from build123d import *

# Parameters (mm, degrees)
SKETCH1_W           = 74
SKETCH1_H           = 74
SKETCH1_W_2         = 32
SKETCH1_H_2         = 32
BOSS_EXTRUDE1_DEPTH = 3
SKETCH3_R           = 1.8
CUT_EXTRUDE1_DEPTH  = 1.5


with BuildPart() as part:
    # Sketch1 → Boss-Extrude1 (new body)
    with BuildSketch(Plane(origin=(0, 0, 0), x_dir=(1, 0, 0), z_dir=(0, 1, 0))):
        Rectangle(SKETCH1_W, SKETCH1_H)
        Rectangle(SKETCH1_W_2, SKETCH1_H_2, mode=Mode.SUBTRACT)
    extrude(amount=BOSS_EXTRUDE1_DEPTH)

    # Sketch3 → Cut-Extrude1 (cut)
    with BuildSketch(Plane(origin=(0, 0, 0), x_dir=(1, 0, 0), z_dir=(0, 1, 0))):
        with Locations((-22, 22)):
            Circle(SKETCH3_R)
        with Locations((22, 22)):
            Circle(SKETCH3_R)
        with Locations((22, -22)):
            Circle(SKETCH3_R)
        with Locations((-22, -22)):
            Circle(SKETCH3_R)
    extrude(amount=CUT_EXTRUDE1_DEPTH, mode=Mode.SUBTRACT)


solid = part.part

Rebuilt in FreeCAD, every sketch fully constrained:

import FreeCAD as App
import Part
import Sketcher

V = App.Vector

doc = App.newDocument("Part")
body = doc.addObject("PartDesign::Body", "Body")

sketch1 = body.newObject("Sketcher::SketchObject", "Sketch")
sketch1.AttachmentSupport = (doc.getObject("XZ_Plane"), [""])
sketch1.MapMode = "FlatFace"
sketch1.addGeometry(Part.LineSegment(V(-37, -37, 0), V(-37, 37, 0)), False)
sketch1.addGeometry(Part.LineSegment(V(-37, 37, 0), V(37, 37, 0)), False)
sketch1.addGeometry(Part.LineSegment(V(37, 37, 0), V(37, -37, 0)), False)
sketch1.addGeometry(Part.LineSegment(V(37, -37, 0), V(-37, -37, 0)), False)
sketch1.addGeometry(Part.LineSegment(V(16, 16, 0), V(-16, 16, 0)), False)
sketch1.addGeometry(Part.LineSegment(V(-16, 16, 0), V(-16, -16, 0)), False)
sketch1.addGeometry(Part.LineSegment(V(-16, -16, 0), V(16, -16, 0)), False)
sketch1.addGeometry(Part.LineSegment(V(16, -16, 0), V(16, 16, 0)), False)
sketch1.addConstraint(Sketcher.Constraint("Coincident", 0, 2, 1, 1))
sketch1.addConstraint(Sketcher.Constraint("Coincident", 1, 2, 2, 1))
sketch1.addConstraint(Sketcher.Constraint("Coincident", 2, 2, 3, 1))
sketch1.addConstraint(Sketcher.Constraint("Coincident", 3, 2, 0, 1))
sketch1.addConstraint(Sketcher.Constraint("Coincident", 4, 2, 5, 1))
sketch1.addConstraint(Sketcher.Constraint("Coincident", 5, 2, 6, 1))
sketch1.addConstraint(Sketcher.Constraint("Coincident", 6, 2, 7, 1))
sketch1.addConstraint(Sketcher.Constraint("Coincident", 7, 2, 4, 1))
sketch1.addConstraint(Sketcher.Constraint("Vertical", 0))
sketch1.addConstraint(Sketcher.Constraint("Horizontal", 1))
sketch1.addConstraint(Sketcher.Constraint("Vertical", 2))
sketch1.addConstraint(Sketcher.Constraint("Horizontal", 3))
sketch1.addConstraint(Sketcher.Constraint("Horizontal", 4))
sketch1.addConstraint(Sketcher.Constraint("Vertical", 5))
sketch1.addConstraint(Sketcher.Constraint("Horizontal", 6))
sketch1.addConstraint(Sketcher.Constraint("Vertical", 7))
sketch1.addConstraint(Sketcher.Constraint("Symmetric", 0, 2, 2, 2, -1, 1))
sketch1.addConstraint(Sketcher.Constraint("Symmetric", 4, 2, 6, 2, -1, 1))
sketch1.addConstraint(Sketcher.Constraint("Equal", 3, 0))
sketch1.addConstraint(Sketcher.Constraint("Equal", 6, 5))
sketch1.addConstraint(Sketcher.Constraint("DistanceX", 1, 1, 1, 2, 74.0))
sketch1.addConstraint(Sketcher.Constraint("DistanceX", 4, 2, 4, 1, 32.0))
pad1 = body.newObject("PartDesign::Pad", "Pad")
pad1.Profile = sketch1
pad1.Length = 3
pad1.Reversed = True

sketch2 = body.newObject("Sketcher::SketchObject", "Sketch001")
sketch2.AttachmentSupport = (doc.getObject("XZ_Plane"), [""])
sketch2.MapMode = "FlatFace"
sketch2.addGeometry(Part.Circle(V(-22, -22, 0), V(0, 0, 1), 1.8), False)
sketch2.addGeometry(Part.Circle(V(22, -22, 0), V(0, 0, 1), 1.8), False)
sketch2.addGeometry(Part.Circle(V(22, 22, 0), V(0, 0, 1), 1.8), False)
sketch2.addGeometry(Part.Circle(V(-22, 22, 0), V(0, 0, 1), 1.8), False)
sketch2.addConstraint(Sketcher.Constraint("Equal", 0, 1))
sketch2.addConstraint(Sketcher.Constraint("Equal", 1, 2))
sketch2.addConstraint(Sketcher.Constraint("Equal", 2, 3))
sketch2.addConstraint(Sketcher.Constraint("Symmetric", 0, 3, 2, 3, -1, 1))
sketch2.addConstraint(Sketcher.Constraint("Symmetric", 1, 3, 3, 3, -1, 1))
sketch2.addConstraint(Sketcher.Constraint("Symmetric", 0, 3, 1, 3, -2))
sketch2.addConstraint(Sketcher.Constraint("Diameter", 0, 3.6))
sketch2.addConstraint(Sketcher.Constraint("DistanceX", 0, 3, -1, 1, 22.0))
sketch2.addConstraint(Sketcher.Constraint("DistanceY", 0, 3, -1, 1, 22.0))
pocket1 = body.newObject("PartDesign::Pocket", "Pocket")
pocket1.Profile = sketch2
pocket1.Length = 1.5

doc.recompute()
